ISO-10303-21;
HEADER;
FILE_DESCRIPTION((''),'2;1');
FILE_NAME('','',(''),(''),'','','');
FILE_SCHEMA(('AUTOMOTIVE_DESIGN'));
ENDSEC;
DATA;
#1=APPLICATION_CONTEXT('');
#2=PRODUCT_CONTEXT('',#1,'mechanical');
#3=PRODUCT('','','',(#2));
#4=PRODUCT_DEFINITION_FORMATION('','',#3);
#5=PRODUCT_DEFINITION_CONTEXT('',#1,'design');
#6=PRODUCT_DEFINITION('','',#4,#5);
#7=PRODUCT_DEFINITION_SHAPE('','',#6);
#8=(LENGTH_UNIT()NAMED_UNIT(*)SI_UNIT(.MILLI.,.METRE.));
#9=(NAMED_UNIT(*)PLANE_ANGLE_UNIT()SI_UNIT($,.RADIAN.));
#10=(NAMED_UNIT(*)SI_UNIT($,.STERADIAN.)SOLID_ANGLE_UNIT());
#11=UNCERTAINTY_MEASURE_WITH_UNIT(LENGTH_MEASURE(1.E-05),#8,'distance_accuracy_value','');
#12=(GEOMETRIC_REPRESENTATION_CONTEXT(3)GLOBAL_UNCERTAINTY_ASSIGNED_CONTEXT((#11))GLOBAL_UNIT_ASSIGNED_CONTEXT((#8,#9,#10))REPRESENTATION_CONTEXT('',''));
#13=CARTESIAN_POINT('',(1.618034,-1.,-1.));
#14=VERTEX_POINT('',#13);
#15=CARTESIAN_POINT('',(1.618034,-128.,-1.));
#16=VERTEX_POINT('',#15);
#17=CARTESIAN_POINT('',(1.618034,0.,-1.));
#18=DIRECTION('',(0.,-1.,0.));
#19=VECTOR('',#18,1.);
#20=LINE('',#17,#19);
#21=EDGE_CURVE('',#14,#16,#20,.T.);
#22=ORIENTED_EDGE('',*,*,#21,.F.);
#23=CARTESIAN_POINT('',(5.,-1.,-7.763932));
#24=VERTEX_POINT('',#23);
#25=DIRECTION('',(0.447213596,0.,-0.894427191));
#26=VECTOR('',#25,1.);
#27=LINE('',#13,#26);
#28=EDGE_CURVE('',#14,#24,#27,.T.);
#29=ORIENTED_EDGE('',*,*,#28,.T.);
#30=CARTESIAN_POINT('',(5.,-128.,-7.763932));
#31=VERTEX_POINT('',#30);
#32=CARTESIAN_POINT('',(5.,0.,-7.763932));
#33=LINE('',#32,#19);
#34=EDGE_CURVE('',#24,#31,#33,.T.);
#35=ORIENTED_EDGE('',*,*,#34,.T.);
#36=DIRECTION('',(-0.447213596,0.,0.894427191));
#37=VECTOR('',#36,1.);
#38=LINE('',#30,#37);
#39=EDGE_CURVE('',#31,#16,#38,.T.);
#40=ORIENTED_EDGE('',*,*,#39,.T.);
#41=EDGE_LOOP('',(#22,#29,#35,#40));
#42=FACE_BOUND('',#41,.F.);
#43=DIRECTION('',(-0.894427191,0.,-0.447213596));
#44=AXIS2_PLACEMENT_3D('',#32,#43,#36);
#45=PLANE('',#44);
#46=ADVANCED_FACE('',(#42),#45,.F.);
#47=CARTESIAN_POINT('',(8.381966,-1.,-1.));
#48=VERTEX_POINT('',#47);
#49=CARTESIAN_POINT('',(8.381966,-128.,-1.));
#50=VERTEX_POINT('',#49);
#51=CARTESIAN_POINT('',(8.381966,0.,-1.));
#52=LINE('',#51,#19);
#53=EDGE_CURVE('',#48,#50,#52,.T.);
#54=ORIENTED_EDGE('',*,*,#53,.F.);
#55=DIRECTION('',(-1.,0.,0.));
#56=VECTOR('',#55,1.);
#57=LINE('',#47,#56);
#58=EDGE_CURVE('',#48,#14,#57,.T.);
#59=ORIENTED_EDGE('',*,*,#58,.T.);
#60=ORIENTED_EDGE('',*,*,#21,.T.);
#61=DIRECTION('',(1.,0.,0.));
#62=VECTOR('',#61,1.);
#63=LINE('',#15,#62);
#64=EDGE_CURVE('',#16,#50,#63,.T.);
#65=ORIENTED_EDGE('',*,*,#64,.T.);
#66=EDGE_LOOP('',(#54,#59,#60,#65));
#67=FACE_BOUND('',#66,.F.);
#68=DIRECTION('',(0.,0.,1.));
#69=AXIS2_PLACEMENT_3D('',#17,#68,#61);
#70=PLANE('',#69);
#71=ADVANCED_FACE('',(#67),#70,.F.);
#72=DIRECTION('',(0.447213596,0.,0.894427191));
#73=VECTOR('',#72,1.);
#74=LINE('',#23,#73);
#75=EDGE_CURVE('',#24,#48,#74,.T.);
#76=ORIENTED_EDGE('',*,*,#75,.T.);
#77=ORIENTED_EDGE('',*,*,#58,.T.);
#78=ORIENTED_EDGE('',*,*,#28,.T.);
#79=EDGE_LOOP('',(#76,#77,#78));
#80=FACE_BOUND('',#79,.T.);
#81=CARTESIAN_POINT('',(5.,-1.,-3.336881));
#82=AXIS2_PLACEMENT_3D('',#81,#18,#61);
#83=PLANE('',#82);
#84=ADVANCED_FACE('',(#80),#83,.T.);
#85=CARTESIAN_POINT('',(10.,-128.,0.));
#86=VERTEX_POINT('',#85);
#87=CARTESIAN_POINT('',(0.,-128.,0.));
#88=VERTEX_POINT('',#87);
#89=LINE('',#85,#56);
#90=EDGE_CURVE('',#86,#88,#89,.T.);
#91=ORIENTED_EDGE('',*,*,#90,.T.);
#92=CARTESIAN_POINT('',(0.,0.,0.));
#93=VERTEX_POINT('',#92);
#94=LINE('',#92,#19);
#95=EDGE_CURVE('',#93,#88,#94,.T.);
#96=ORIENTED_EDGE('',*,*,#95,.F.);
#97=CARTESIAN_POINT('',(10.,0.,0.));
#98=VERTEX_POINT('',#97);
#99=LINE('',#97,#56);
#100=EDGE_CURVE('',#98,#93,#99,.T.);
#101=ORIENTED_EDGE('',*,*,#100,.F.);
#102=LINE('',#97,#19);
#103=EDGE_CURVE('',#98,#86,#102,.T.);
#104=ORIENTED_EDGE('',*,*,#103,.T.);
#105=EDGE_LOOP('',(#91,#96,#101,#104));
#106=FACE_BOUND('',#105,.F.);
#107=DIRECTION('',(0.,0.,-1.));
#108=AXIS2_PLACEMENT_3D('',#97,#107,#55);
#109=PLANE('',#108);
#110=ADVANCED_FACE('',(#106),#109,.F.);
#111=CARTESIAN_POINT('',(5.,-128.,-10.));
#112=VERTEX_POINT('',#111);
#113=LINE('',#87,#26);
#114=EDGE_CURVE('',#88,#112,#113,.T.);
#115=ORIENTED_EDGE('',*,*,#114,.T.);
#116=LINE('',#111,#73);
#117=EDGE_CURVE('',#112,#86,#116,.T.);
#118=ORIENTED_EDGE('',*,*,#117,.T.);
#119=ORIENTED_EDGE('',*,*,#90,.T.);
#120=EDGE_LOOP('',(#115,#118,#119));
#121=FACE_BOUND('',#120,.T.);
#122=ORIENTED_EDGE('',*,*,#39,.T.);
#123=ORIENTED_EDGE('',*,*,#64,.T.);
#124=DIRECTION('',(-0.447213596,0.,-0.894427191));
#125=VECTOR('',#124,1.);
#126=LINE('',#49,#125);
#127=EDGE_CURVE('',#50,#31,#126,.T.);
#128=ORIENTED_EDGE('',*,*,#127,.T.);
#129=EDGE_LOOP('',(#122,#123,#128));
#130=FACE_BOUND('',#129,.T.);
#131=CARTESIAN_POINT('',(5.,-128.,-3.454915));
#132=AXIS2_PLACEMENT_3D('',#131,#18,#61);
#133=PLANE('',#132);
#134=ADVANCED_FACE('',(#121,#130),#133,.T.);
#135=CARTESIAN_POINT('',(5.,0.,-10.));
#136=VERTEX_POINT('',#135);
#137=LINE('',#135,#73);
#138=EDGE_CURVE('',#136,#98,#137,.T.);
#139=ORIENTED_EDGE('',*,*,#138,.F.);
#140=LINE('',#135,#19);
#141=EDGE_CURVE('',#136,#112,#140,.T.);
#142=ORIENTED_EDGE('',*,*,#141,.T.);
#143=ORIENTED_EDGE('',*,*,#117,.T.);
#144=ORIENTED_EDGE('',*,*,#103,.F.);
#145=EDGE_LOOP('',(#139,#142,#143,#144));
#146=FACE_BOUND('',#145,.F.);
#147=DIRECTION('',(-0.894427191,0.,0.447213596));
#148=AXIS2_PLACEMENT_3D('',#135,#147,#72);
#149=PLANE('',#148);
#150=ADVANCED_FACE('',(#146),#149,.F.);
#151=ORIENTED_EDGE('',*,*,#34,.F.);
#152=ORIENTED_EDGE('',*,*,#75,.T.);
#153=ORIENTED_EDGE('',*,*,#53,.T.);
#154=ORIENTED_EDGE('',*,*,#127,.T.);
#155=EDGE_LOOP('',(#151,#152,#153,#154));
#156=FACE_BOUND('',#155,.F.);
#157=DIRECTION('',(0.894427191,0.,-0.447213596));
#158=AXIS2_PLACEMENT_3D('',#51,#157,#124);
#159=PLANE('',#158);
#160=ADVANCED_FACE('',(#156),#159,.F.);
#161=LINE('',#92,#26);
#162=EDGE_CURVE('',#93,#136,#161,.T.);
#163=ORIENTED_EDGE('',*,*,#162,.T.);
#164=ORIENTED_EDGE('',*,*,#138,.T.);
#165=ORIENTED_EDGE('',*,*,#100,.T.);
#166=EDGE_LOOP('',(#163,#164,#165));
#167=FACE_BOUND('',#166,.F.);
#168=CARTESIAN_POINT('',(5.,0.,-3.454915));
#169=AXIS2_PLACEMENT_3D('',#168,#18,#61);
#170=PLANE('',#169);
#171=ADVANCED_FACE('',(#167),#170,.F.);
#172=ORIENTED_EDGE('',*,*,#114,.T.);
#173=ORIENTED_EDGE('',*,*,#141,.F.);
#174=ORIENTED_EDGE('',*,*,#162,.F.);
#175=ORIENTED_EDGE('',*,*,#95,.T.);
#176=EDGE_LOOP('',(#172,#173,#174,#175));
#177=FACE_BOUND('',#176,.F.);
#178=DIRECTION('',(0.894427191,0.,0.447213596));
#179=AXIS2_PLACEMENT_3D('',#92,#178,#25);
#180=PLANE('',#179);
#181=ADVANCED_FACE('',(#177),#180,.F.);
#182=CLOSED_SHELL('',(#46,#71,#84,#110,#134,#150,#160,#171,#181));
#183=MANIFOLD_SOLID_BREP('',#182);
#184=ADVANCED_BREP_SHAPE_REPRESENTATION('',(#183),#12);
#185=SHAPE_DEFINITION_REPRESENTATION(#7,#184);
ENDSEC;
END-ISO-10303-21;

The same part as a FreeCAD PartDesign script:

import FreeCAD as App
import Part
import Sketcher
Q = App.Units.Quantity

doc = App.newDocument("Part")
body = doc.addObject("PartDesign::Body", "Body")

sketch1 = body.newObject("Sketcher::SketchObject", "Sketch")
sketch1.AttachmentSupport = (doc.getObject("XZ_Plane"), [""])
sketch1.MapMode = "FlatFace"
sketch1.addGeometry([
    Part.LineSegment(App.Vector(1.618034, -1, 0), App.Vector(5, -7.763932, 0)),
    Part.LineSegment(App.Vector(5, -7.763932, 0), App.Vector(8.381966, -1, 0)),
    Part.LineSegment(App.Vector(8.381966, -1, 0), App.Vector(1.618034, -1, 0)),
], False)
sketch1.addConstraint([
    Sketcher.Constraint("Coincident", 0, 2, 1, 1),
    Sketcher.Constraint("Coincident", 1, 2, 2, 1),
    Sketcher.Constraint("Coincident", 2, 2, 0, 1),
    Sketcher.Constraint("Horizontal", 2),
    Sketcher.Constraint("Equal", 0, 1),
    Sketcher.Constraint("DistanceX", -1, 1, 0, 2, Q("5 mm")),
    Sketcher.Constraint("DistanceY", 1, 2, -1, 1, Q("1 mm")),
    Sketcher.Constraint("DistanceX", 2, 2, 2, 1, Q("6.763932 mm")),
    Sketcher.Constraint("DistanceY", 0, 2, -1, 1, Q("7.763932 mm")),
])
pad1 = body.newObject("PartDesign::Pad", "Pad")
pad1.Profile = sketch1
pad1.Length = 1

sketch2 = body.newObject("Sketcher::SketchObject", "Sketch001")
sketch2.AttachmentSupport = (doc.getObject("XZ_Plane"), [""])
sketch2.MapMode = "FlatFace"
sketch2.addGeometry([
    Part.LineSegment(App.Vector(0, 0, 0), App.Vector(5, -10, 0)),
    Part.LineSegment(App.Vector(5, -10, 0), App.Vector(10, 0, 0)),
    Part.LineSegment(App.Vector(10, 0, 0), App.Vector(0, 0, 0)),
    Part.LineSegment(App.Vector(8.381966, -1, 0), App.Vector(5, -7.763932, 0)),
    Part.LineSegment(App.Vector(5, -7.763932, 0), App.Vector(1.618034, -1, 0)),
    Part.LineSegment(App.Vector(1.618034, -1, 0), App.Vector(8.381966, -1, 0)),
], False)
sketch2.addConstraint([
    Sketcher.Constraint("Coincident", 0, 2, 1, 1),
    Sketcher.Constraint("Coincident", 1, 2, 2, 1),
    Sketcher.Constraint("Coincident", 2, 2, 0, 1),
    Sketcher.Constraint("Coincident", 3, 2, 4, 1),
    Sketcher.Constraint("Coincident", 4, 2, 5, 1),
    Sketcher.Constraint("Coincident", 5, 2, 3, 1),
    Sketcher.Constraint("Horizontal", 2),
    Sketcher.Constraint("Horizontal", 5),
    Sketcher.Constraint("Coincident", 2, 2, -1, 1),
    Sketcher.Constraint("Parallel", 1, 3),
    Sketcher.Constraint("Parallel", 0, 4),
    Sketcher.Constraint("Vertical", 0, 2, 3, 2),
    Sketcher.Constraint("Equal", 0, 1),
    Sketcher.Constraint("DistanceX", 2, 2, 2, 1, Q("10 mm")),
    Sketcher.Constraint("DistanceY", 0, 2, -1, 1, Q("10 mm")),
    Sketcher.Constraint("DistanceY", 4, 2, -1, 1, Q("1 mm")),
    Sketcher.Constraint("DistanceX", 5, 1, 5, 2, Q("6.763932 mm")),
])
pad2 = body.newObject("PartDesign::Pad", "Pad001")
pad2.Profile = sketch2
pad2.Length = 128

doc.recompute()
